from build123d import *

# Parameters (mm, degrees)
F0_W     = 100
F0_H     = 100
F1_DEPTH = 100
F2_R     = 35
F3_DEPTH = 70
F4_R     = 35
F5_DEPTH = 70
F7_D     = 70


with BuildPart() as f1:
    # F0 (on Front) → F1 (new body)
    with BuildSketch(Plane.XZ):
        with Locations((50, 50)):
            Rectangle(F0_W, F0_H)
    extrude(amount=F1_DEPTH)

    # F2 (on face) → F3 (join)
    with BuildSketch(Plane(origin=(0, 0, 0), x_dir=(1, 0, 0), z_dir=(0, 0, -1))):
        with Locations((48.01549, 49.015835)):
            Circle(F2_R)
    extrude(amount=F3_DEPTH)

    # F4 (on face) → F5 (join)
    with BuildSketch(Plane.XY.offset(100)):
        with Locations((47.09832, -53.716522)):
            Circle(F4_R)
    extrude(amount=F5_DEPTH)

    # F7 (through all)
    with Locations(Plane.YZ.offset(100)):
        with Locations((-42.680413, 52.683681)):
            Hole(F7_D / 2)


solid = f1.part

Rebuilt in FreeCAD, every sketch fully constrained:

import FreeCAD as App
import Part
import Sketcher
from FreeCAD import Vector
Q = App.Units.Quantity


def add_polygon(sketch, points):
    """Adds a closed chain of lines whose ends are joined by coincident constraints."""
    first, n = sketch.GeometryCount, len(points)
    for a, b in zip(points, points[1:] + points[:1]):
        sketch.addGeometry(Part.LineSegment(App.Vector(*a, 0), App.Vector(*b, 0)), False)
    for i in range(n):
        sketch.addConstraint(Sketcher.Constraint("Coincident", first + i, 2, first + (i + 1) % n, 1))

doc = App.newDocument("Part")
params = doc.addObject("Spreadsheet::Sheet", "Params")
for row, (alias, value) in enumerate([
    ("sketch1_width", "100 mm"),
    ("pad1_length", "100 mm"),
    ("sketch2_diameter", "70 mm"),
    ("pad2_length", "70 mm"),
    ("sketch3_diameter", "70 mm"),
    ("pad3_length", "70 mm"),
    ("sketch4_diameter", "70 mm"),
    ("hole_diameter", "70 mm"),
], start=1):
    params.set(f"A{row}", alias)
    params.set(f"B{row}", "=" + value)
    params.setAlias(f"B{row}", alias)

body = doc.addObject("PartDesign::Body", "Body")

# Sketch on XZ plane
sketch1 = body.newObject("Sketcher::SketchObject", "Sketch")
sketch1.AttachmentSupport = (doc.getObject("XZ_Plane"), [""])
sketch1.MapMode = "FlatFace"
add_polygon(sketch1, [(0, 100), (0, 0), (100, 0), (100, 100)])  # lines 0-3
sketch1.addConstraint([
    Sketcher.Constraint("Vertical", 0),
    Sketcher.Constraint("Horizontal", 1),
    Sketcher.Constraint("Vertical", 2),
    Sketcher.Constraint("Horizontal", 3),
    Sketcher.Constraint("Coincident", 0, 2, -1, 1),
    Sketcher.Constraint("Equal", 3, 0),
    Sketcher.Constraint("DistanceX", 1, 1, 1, 2, Q("100 mm")),
])
sketch1.setExpression("Constraints[10]", "Params.sketch1_width")
pad1 = body.newObject("PartDesign::Pad", "Pad")
pad1.Profile = sketch1
pad1.setExpression("Length", "Params.pad1_length")

# Sketch on XY plane
sketch2 = body.newObject("Sketcher::SketchObject", "Sketch001")
sketch2.AttachmentSupport = (doc.getObject("XY_Plane"), [""])
sketch2.MapMode = "FlatFace"
sketch2.addGeometry(Part.Circle(Vector(48, -49, 0), Vector(0, 0, 1), 35), False)
sketch2.addConstraint([
    Sketcher.Constraint("Diameter", 0, Q("70 mm")),
    Sketcher.Constraint("DistanceX", -1, 1, 0, 3, Q("48.01549 mm")),
    Sketcher.Constraint("DistanceY", 0, 3, -1, 1, Q("49.015835 mm")),
])
sketch2.setExpression("Constraints[0]", "Params.sketch2_diameter")
pad2 = body.newObject("PartDesign::Pad", "Pad001")
pad2.Profile = sketch2
pad2.setExpression("Length", "Params.pad2_length")
pad2.Reversed = True

# Sketch on XY plane
sketch3 = body.newObject("Sketcher::SketchObject", "Sketch002")
sketch3.AttachmentSupport = (doc.getObject("XY_Plane"), [""])
sketch3.MapMode = "FlatFace"
sketch3.AttachmentOffset = App.Placement(Vector(0, 0, 100), App.Rotation())
sketch3.addGeometry(Part.Circle(Vector(47, -54, 0), Vector(0, 0, 1), 35), False)
sketch3.addConstraint([
    Sketcher.Constraint("Diameter", 0, Q("70 mm")),
    Sketcher.Constraint("DistanceX", -1, 1, 0, 3, Q("47.09832 mm")),
    Sketcher.Constraint("DistanceY", 0, 3, -1, 1, Q("53.716522 mm")),
])
sketch3.setExpression("Constraints[0]", "Params.sketch3_diameter")
pad3 = body.newObject("PartDesign::Pad", "Pad002")
pad3.Profile = sketch3
pad3.setExpression("Length", "Params.pad3_length")

# Sketch on YZ plane
sketch4 = body.newObject("Sketcher::SketchObject", "Sketch003")
sketch4.AttachmentSupport = (doc.getObject("YZ_Plane"), [""])
sketch4.MapMode = "FlatFace"
sketch4.AttachmentOffset = App.Placement(Vector(0, 0, 100), App.Rotation())
sketch4.addGeometry(Part.Circle(Vector(-43, 53, 0), Vector(0, 0, 1), 35), False)
sketch4.addConstraint([
    Sketcher.Constraint("Diameter", 0, Q("70 mm")),
    Sketcher.Constraint("DistanceY", -1, 1, 0, 3, Q("52.683681 mm")),
    Sketcher.Constraint("DistanceX", 0, 3, -1, 1, Q("42.680413 mm")),
])
sketch4.setExpression("Constraints[0]", "Params.sketch4_diameter")
doc.recompute()
hole = body.newObject("PartDesign::Hole", "Hole")
hole.Profile = sketch4
hole.ThreadType = "None"
hole.setExpression("Diameter", "Params.hole_diameter")
hole.DepthType = "ThroughAll"

doc.recompute()
